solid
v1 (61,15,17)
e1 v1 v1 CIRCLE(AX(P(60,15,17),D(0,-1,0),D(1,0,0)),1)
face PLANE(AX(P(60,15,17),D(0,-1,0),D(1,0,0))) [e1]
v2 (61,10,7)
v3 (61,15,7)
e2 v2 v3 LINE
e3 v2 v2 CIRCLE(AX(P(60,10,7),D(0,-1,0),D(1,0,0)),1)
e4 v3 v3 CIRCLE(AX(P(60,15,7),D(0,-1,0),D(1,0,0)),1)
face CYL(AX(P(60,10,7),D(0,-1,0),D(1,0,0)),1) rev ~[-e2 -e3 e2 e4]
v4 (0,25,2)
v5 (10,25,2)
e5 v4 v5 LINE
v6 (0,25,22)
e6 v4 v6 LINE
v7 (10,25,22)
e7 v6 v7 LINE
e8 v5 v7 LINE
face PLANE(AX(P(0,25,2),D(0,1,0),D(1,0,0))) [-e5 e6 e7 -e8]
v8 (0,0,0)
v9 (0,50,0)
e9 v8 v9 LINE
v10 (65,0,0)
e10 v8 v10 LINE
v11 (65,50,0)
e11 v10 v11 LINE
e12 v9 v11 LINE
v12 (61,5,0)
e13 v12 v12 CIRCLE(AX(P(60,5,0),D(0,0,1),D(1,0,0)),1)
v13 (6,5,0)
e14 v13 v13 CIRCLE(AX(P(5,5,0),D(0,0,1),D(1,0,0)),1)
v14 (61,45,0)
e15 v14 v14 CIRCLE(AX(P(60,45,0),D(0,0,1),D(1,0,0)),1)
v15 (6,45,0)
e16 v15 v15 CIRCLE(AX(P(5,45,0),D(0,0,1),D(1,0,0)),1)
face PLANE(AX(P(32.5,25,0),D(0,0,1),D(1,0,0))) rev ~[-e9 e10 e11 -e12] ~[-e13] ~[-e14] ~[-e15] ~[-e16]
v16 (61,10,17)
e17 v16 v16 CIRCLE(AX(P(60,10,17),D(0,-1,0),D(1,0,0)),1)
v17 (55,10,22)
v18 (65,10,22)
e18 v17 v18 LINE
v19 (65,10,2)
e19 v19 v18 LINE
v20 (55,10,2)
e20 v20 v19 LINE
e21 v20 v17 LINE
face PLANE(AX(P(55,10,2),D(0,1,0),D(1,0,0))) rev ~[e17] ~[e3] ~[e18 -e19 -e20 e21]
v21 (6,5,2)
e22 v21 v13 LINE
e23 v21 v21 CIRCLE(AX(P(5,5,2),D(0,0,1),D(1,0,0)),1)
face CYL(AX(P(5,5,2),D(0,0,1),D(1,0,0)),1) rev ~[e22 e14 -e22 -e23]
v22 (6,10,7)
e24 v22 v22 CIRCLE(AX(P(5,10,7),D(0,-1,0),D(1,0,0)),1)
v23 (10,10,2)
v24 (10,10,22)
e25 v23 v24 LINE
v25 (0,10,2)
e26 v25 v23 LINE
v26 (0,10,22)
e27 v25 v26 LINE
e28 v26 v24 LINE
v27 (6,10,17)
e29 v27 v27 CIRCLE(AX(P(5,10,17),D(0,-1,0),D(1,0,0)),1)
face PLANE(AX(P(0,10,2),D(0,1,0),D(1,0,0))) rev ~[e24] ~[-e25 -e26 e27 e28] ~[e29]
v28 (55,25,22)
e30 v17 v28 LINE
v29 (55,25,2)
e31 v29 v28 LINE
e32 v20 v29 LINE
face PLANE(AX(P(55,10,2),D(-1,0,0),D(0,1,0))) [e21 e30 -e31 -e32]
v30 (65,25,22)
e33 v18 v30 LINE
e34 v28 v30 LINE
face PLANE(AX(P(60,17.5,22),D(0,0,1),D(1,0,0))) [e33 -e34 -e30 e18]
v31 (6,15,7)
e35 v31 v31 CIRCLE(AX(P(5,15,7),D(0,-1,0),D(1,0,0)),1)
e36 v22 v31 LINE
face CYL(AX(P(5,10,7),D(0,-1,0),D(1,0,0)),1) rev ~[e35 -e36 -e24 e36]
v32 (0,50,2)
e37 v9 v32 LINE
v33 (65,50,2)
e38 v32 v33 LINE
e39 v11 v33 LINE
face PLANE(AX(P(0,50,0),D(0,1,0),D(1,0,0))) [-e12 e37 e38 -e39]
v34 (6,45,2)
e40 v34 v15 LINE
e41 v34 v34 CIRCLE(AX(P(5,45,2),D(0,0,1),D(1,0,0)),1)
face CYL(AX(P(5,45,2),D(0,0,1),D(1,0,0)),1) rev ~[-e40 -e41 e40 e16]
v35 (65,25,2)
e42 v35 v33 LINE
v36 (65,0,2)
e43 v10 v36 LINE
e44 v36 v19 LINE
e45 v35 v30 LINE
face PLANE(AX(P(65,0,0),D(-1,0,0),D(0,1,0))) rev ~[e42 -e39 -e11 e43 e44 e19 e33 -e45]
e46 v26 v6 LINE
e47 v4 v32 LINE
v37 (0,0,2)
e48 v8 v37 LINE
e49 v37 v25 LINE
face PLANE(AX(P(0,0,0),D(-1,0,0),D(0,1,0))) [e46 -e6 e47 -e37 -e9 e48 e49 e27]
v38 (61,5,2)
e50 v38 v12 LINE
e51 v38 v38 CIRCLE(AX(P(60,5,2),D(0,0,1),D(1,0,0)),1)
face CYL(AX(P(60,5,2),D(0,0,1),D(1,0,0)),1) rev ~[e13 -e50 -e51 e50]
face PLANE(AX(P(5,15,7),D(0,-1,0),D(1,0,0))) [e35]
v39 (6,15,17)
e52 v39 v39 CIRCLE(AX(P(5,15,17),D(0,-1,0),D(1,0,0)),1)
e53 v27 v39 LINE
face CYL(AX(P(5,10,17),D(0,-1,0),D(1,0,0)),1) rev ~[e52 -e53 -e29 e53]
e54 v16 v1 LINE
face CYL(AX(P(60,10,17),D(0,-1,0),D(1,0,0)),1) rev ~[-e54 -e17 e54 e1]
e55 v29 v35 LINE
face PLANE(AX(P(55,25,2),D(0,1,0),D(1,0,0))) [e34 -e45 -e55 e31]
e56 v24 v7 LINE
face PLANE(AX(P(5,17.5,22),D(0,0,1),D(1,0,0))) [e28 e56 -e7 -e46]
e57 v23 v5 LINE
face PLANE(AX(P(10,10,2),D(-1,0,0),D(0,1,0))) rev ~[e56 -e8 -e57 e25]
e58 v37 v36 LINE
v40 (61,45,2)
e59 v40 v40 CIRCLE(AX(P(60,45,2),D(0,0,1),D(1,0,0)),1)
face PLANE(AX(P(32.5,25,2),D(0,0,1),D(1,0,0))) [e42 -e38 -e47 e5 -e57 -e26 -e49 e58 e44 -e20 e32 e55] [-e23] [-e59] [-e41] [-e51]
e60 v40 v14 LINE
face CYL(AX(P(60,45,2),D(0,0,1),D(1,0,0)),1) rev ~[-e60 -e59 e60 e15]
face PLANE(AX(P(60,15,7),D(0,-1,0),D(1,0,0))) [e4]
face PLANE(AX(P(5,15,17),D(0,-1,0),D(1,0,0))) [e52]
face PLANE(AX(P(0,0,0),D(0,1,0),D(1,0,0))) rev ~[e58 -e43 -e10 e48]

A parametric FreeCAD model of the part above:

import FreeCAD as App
import Part
import Sketcher

V = App.Vector
Q = App.Units.Quantity


def add_polygon(sketch, points):
    """Adds a closed chain of lines whose ends are joined by coincident constraints."""
    first, n = sketch.GeometryCount, len(points)
    for a, b in zip(points, points[1:] + points[:1]):
        sketch.addGeometry(Part.LineSegment(App.Vector(*a, 0), App.Vector(*b, 0)), False)
    for i in range(n):
        sketch.addConstraint(Sketcher.Constraint("Coincident", first + i, 2, first + (i + 1) % n, 1))

doc = App.newDocument("Part")
body = doc.addObject("PartDesign::Body", "Body")

sketch1 = body.newObject("Sketcher::SketchObject", "Sketch")
sketch1.AttachmentSupport = (doc.getObject("XY_Plane"), [""])
sketch1.MapMode = "FlatFace"
add_polygon(sketch1, [(0, 50), (0, 0), (65, 0), (65, 50)])
sketch1.addConstraint([
    Sketcher.Constraint("Vertical", 0),
    Sketcher.Constraint("Horizontal", 1),
    Sketcher.Constraint("Vertical", 2),
    Sketcher.Constraint("Horizontal", 3),
    Sketcher.Constraint("Coincident", 0, 2, -1, 1),
    Sketcher.Constraint("DistanceX", 1, 1, 1, 2, Q("65 mm")),
    Sketcher.Constraint("DistanceY", 0, 2, 0, 1, Q("50 mm")),
])
pad1 = body.newObject("PartDesign::Pad", "Pad")
pad1.Profile = sketch1
pad1.Length = 2

sketch2 = body.newObject("Sketcher::SketchObject", "Sketch001")
sketch2.AttachmentSupport = (doc.getObject("XY_Plane"), [""])
sketch2.MapMode = "FlatFace"
sketch2.AttachmentOffset = App.Placement(V(0, 0, 2), App.Rotation())
add_polygon(sketch2, [(0, 25), (0, 10), (10, 10), (10, 25)])
add_polygon(sketch2, [(55, 25), (55, 10), (65, 10), (65, 25)])
sketch2.addConstraint([
    Sketcher.Constraint("Vertical", 0),
    Sketcher.Constraint("Horizontal", 1),
    Sketcher.Constraint("Vertical", 2),
    Sketcher.Constraint("Horizontal", 3),
    Sketcher.Constraint("Vertical", 4),
    Sketcher.Constraint("Horizontal", 5),
    Sketcher.Constraint("Vertical", 6),
    Sketcher.Constraint("Horizontal", 7),
    Sketcher.Constraint("PointOnObject", 0, 2, -2),
    Sketcher.Constraint("Horizontal", 1, 2, 4, 2),
    Sketcher.Constraint("Horizontal", 3, 2, 6, 2),
    Sketcher.Constraint("Equal", 3, 5),
    Sketcher.Constraint("DistanceX", 1, 1, 1, 2, Q("10 mm")),
    Sketcher.Constraint("DistanceY", 0, 2, 0, 1, Q("15 mm")),
    Sketcher.Constraint("DistanceY", -1, 1, 0, 2, Q("10 mm")),
    Sketcher.Constraint("DistanceX", -1, 1, 4, 2, Q("55 mm")),
])
pad2 = body.newObject("PartDesign::Pad", "Pad001")
pad2.Profile = sketch2
pad2.Length = 20

sketch3 = body.newObject("Sketcher::SketchObject", "Sketch002")
sketch3.AttachmentSupport = (doc.getObject("XZ_Plane"), [""])
sketch3.MapMode = "FlatFace"
sketch3.AttachmentOffset = App.Placement(V(0, 0, -10), App.Rotation())
sketch3.addGeometry([
    Part.Circle(V(5, 17, 0), V(0, 0, 1), 1),
    Part.Circle(V(5, 7, 0), V(0, 0, 1), 1),
    Part.Circle(V(60, 17, 0), V(0, 0, 1), 1),
    Part.Circle(V(60, 7, 0), V(0, 0, 1), 1),
], False)
sketch3.addConstraint([
    Sketcher.Constraint("Equal", 0, 1),
    Sketcher.Constraint("Equal", 1, 2),
    Sketcher.Constraint("Equal", 2, 3),
    Sketcher.Constraint("Horizontal", 0, 3, 2, 3),
    Sketcher.Constraint("Horizontal", 1, 3, 3, 3),
    Sketcher.Constraint("Vertical", 0, 3, 1, 3),
    Sketcher.Constraint("Vertical", 2, 3, 3, 3),
    Sketcher.Constraint("Diameter", 0, Q("2 mm")),
    Sketcher.Constraint("DistanceX", -1, 1, 0, 3, Q("5 mm")),
    Sketcher.Constraint("DistanceY", -1, 1, 0, 3, Q("17 mm")),
    Sketcher.Constraint("DistanceY", -1, 1, 1, 3, Q("7 mm")),
    Sketcher.Constraint("DistanceX", -1, 1, 2, 3, Q("60 mm")),
])
pocket1 = body.newObject("PartDesign::Pocket", "Pocket")
pocket1.Profile = sketch3
pocket1.Length = 5

sketch4 = body.newObject("Sketcher::SketchObject", "Sketch003")
sketch4.AttachmentSupport = (doc.getObject("XY_Plane"), [""])
sketch4.MapMode = "FlatFace"
sketch4.AttachmentOffset = App.Placement(V(0, 0, 2), App.Rotation())
sketch4.addGeometry([
    Part.Circle(V(5, 45, 0), V(0, 0, 1), 1),
    Part.Circle(V(60, 45, 0), V(0, 0, 1), 1),
    Part.Circle(V(60, 5, 0), V(0, 0, 1), 1),
    Part.Circle(V(5, 5, 0), V(0, 0, 1), 1),
], False)
sketch4.addConstraint([
    Sketcher.Constraint("Equal", 0, 1),
    Sketcher.Constraint("Equal", 1, 2),
    Sketcher.Constraint("Equal", 2, 3),
    Sketcher.Constraint("Horizontal", 0, 3, 1, 3),
    Sketcher.Constraint("Horizontal", 2, 3, 3, 3),
    Sketcher.Constraint("Vertical", 1, 3, 2, 3),
    Sketcher.Constraint("Vertical", 0, 3, 3, 3),
    Sketcher.Constraint("Diameter", 0, Q("2 mm")),
    Sketcher.Constraint("DistanceX", -1, 1, 0, 3, Q("5 mm")),
    Sketcher.Constraint("DistanceY", -1, 1, 0, 3, Q("45 mm")),
    Sketcher.Constraint("DistanceX", -1, 1, 1, 3, Q("60 mm")),
    Sketcher.Constraint("DistanceY", -1, 1, 2, 3, Q("5 mm")),
])
pocket2 = body.newObject("PartDesign::Pocket", "Pocket001")
pocket2.Profile = sketch4
pocket2.Length = 25

doc.recompute()
